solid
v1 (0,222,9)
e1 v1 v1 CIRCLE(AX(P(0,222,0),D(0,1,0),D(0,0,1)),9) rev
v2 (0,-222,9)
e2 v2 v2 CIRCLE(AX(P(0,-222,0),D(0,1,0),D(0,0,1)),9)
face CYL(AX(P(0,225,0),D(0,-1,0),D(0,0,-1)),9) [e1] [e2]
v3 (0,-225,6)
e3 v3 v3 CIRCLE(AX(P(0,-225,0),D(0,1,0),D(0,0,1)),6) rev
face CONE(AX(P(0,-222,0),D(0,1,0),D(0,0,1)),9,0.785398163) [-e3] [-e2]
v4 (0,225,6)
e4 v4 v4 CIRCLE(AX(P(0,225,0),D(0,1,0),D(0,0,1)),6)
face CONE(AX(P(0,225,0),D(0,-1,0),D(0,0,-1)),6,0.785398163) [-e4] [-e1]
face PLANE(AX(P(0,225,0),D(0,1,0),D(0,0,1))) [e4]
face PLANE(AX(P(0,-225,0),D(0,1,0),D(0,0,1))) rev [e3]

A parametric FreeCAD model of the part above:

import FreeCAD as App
import Part
import Sketcher
from FreeCAD import Vector
Q = App.Units.Quantity


def edges_at(feature, points):
    """Names of the edges that pass closest to the given points."""
    edges = feature.Shape.Edges
    near = lambda p: min(range(len(edges)), key=lambda i: edges[i].distToShape(Part.Vertex(*p))[0])
    return sorted({f"Edge{near(p) + 1}" for p in points})

doc = App.newDocument("Part")
body = doc.addObject("PartDesign::Body", "Body")

# Sketch on XZ plane
sketch1 = body.newObject("Sketcher::SketchObject", "Sketch")
sketch1.AttachmentSupport = (doc.getObject("XZ_Plane"), [""])
sketch1.MapMode = "FlatFace"
sketch1.addGeometry(Part.Circle(Vector(0, 0, 0), Vector(0, 0, 1), 9), False)
sketch1.addConstraint([
    Sketcher.Constraint("Coincident", 0, 3, -1, 1),
    Sketcher.Constraint("Diameter", 0, Q("18 mm")),
])
pad1 = body.newObject("PartDesign::Pad", "Pad")
pad1.Profile = sketch1
pad1.Length = 450
pad1.Midplane = True
doc.recompute()

chamfer = body.newObject("PartDesign::Chamfer", "Chamfer")
chamfer.Base = (pad1, edges_at(pad1, [(-9, -225, 0), (-9, 225, 0)]))
chamfer.Size = 3

doc.recompute()
